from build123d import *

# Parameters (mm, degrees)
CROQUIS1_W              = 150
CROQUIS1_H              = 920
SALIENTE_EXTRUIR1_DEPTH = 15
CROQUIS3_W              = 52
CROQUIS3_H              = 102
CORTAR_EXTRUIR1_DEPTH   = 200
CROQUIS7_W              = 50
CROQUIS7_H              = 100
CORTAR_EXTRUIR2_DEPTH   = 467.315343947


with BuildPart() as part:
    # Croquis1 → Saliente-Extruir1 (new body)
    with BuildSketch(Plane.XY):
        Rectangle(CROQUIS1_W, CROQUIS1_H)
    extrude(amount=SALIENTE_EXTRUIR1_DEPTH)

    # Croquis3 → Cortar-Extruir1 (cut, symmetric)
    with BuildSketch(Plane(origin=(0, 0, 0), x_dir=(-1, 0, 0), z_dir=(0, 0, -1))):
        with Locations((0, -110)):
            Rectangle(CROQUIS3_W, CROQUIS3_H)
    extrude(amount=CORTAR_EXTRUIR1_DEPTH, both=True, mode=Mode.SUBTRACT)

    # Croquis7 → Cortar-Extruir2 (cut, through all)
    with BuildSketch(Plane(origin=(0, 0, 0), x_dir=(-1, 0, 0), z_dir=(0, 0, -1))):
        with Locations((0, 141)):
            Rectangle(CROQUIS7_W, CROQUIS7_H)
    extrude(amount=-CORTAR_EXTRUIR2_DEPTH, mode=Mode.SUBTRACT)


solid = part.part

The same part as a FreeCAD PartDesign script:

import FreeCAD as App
import Part
import Sketcher
Q = App.Units.Quantity

doc = App.newDocument("Part")
body = doc.addObject("PartDesign::Body", "Body")

sketch1 = body.newObject("Sketcher::SketchObject", "Sketch")
sketch1.AttachmentSupport = (doc.getObject("XY_Plane"), [""])
sketch1.MapMode = "FlatFace"
sketch1.addGeometry(Part.LineSegment(App.Vector(-75, 460, 0), App.Vector(-75, -460, 0)), False)
sketch1.addGeometry(Part.LineSegment(App.Vector(-75, -460, 0), App.Vector(75, -460, 0)), False)
sketch1.addGeometry(Part.LineSegment(App.Vector(75, -460, 0), App.Vector(75, 460, 0)), False)
sketch1.addGeometry(Part.LineSegment(App.Vector(75, 460, 0), App.Vector(-75, 460, 0)), False)
sketch1.addConstraint(Sketcher.Constraint("Coincident", 0, 2, 1, 1))
sketch1.addConstraint(Sketcher.Constraint("Coincident", 1, 2, 2, 1))
sketch1.addConstraint(Sketcher.Constraint("Coincident", 2, 2, 3, 1))
sketch1.addConstraint(Sketcher.Constraint("Coincident", 3, 2, 0, 1))
sketch1.addConstraint(Sketcher.Constraint("Vertical", 0))
sketch1.addConstraint(Sketcher.Constraint("Horizontal", 1))
sketch1.addConstraint(Sketcher.Constraint("Vertical", 2))
sketch1.addConstraint(Sketcher.Constraint("Horizontal", 3))
sketch1.addConstraint(Sketcher.Constraint("Symmetric", 0, 2, 2, 2, -1, 1))
sketch1.addConstraint(Sketcher.Constraint("DistanceX", 1, 1, 1, 2, Q("150 mm")))
sketch1.addConstraint(Sketcher.Constraint("DistanceY", 0, 2, 0, 1, Q("920 mm")))
pad1 = body.newObject("PartDesign::Pad", "Pad")
pad1.Profile = sketch1
pad1.Length = 15

sketch2 = body.newObject("Sketcher::SketchObject", "Sketch001")
sketch2.AttachmentSupport = (doc.getObject("XY_Plane"), [""])
sketch2.MapMode = "FlatFace"
sketch2.addGeometry(Part.LineSegment(App.Vector(26, -59, 0), App.Vector(26, -161, 0)), False)
sketch2.addGeometry(Part.LineSegment(App.Vector(26, -161, 0), App.Vector(-26, -161, 0)), False)
sketch2.addGeometry(Part.LineSegment(App.Vector(-26, -161, 0), App.Vector(-26, -59, 0)), False)
sketch2.addGeometry(Part.LineSegment(App.Vector(-26, -59, 0), App.Vector(26, -59, 0)), False)
sketch2.addConstraint(Sketcher.Constraint("Coincident", 0, 2, 1, 1))
sketch2.addConstraint(Sketcher.Constraint("Coincident", 1, 2, 2, 1))
sketch2.addConstraint(Sketcher.Constraint("Coincident", 2, 2, 3, 1))
sketch2.addConstraint(Sketcher.Constraint("Coincident", 3, 2, 0, 1))
sketch2.addConstraint(Sketcher.Constraint("Vertical", 0))
sketch2.addConstraint(Sketcher.Constraint("Horizontal", 1))
sketch2.addConstraint(Sketcher.Constraint("Vertical", 2))
sketch2.addConstraint(Sketcher.Constraint("Horizontal", 3))
sketch2.addConstraint(Sketcher.Constraint("DistanceX", 1, 2, 1, 1, Q("52 mm")))
sketch2.addConstraint(Sketcher.Constraint("DistanceY", 0, 2, 0, 1, Q("102 mm")))
sketch2.addConstraint(Sketcher.Constraint("DistanceX", -1, 1, 0, 2, Q("26 mm")))
sketch2.addConstraint(Sketcher.Constraint("DistanceY", 0, 2, -1, 1, Q("161 mm")))
pocket1 = body.newObject("PartDesign::Pocket", "Pocket")
pocket1.Profile = sketch2
pocket1.Length = 400
pocket1.Midplane = True

sketch3 = body.newObject("Sketcher::SketchObject", "Sketch002")
sketch3.AttachmentSupport = (doc.getObject("XY_Plane"), [""])
sketch3.MapMode = "FlatFace"
sketch3.addGeometry(Part.LineSegment(App.Vector(25, 191, 0), App.Vector(25, 91, 0)), False)
sketch3.addGeometry(Part.LineSegment(App.Vector(25, 91, 0), App.Vector(-25, 91, 0)), False)
sketch3.addGeometry(Part.LineSegment(App.Vector(-25, 91, 0), App.Vector(-25, 191, 0)), False)
sketch3.addGeometry(Part.LineSegment(App.Vector(-25, 191, 0), App.Vector(25, 191, 0)), False)
sketch3.addConstraint(Sketcher.Constraint("Coincident", 0, 2, 1, 1))
sketch3.addConstraint(Sketcher.Constraint("Coincident", 1, 2, 2, 1))
sketch3.addConstraint(Sketcher.Constraint("Coincident", 2, 2, 3, 1))
sketch3.addConstraint(Sketcher.Constraint("Coincident", 3, 2, 0, 1))
sketch3.addConstraint(Sketcher.Constraint("Vertical", 0))
sketch3.addConstraint(Sketcher.Constraint("Horizontal", 1))
sketch3.addConstraint(Sketcher.Constraint("Vertical", 2))
sketch3.addConstraint(Sketcher.Constraint("Horizontal", 3))
sketch3.addConstraint(Sketcher.Constraint("DistanceX", 1, 2, 1, 1, Q("50 mm")))
sketch3.addConstraint(Sketcher.Constraint("DistanceY", 0, 2, 0, 1, Q("100 mm")))
sketch3.addConstraint(Sketcher.Constraint("DistanceX", -1, 1, 0, 2, Q("25 mm")))
sketch3.addConstraint(Sketcher.Constraint("DistanceY", -1, 1, 0, 2, Q("91 mm")))
pocket2 = body.newObject("PartDesign::Pocket", "Pocket001")
pocket2.Profile = sketch3
pocket2.Type = "ThroughAll"
pocket2.Reversed = True

doc.recompute()
